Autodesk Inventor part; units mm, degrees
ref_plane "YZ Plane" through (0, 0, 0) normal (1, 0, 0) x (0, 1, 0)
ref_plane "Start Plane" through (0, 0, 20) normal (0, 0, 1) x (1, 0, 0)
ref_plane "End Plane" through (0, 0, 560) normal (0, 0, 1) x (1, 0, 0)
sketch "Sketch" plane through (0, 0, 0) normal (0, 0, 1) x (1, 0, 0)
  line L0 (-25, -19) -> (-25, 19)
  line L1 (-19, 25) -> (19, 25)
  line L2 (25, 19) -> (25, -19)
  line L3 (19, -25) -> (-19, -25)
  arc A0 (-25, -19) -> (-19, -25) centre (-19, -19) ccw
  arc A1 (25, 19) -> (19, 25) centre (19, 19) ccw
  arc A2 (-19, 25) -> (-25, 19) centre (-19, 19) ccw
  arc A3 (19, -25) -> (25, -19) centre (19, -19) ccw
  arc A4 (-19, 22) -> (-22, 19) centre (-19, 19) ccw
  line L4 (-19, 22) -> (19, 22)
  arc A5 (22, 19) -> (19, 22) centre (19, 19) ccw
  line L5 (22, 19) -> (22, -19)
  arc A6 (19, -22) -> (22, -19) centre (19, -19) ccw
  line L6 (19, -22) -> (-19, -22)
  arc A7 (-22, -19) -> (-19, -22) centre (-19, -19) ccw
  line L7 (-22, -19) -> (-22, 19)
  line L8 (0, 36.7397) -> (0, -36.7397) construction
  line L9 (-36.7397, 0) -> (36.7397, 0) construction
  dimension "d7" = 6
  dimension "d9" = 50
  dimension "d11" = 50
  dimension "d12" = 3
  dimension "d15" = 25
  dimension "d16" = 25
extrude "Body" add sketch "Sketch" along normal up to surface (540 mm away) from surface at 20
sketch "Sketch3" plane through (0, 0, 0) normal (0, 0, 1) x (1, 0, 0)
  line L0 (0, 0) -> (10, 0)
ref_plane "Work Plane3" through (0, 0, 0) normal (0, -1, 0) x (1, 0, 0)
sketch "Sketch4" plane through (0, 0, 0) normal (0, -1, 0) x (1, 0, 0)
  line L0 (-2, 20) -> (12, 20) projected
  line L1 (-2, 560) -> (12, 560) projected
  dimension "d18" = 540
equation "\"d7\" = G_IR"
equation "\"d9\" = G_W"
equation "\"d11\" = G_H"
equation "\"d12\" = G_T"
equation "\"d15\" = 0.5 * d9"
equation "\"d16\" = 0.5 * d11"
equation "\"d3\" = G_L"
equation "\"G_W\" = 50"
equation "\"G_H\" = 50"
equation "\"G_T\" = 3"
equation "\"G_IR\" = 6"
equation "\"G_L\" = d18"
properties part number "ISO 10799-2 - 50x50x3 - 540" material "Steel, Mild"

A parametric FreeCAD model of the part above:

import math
import FreeCAD as App
import Part
import Sketcher
from FreeCAD import Vector

doc = App.newDocument("Part")
params = doc.addObject("Spreadsheet::Sheet", "Params")
for row, (alias, value) in enumerate([
    ("sketch1_radius", "6 mm"),
    ("sketch1_radius2", "3 mm"),
    ("pad1_length", "540 mm"),
], start=1):
    params.set(f"A{row}", alias)
    params.set(f"B{row}", "=" + value)
    params.setAlias(f"B{row}", alias)

body = doc.addObject("PartDesign::Body", "Body")

sketch1 = doc.addObject("Sketcher::SketchObject", "Sketch")
body.addObject(sketch1)
sketch1.AttachmentSupport = (doc.XY_Plane, [""])
sketch1.MapMode = "FlatFace"
sketch1.AttachmentOffset = App.Placement(Vector(0, 0, 20), App.Rotation())
sketch1.addGeometry(Part.LineSegment(Vector(-25, 19, 0), Vector(-25, -19, 0)), False)
sketch1.addGeometry(Part.ArcOfCircle(Part.Circle(Vector(-19, -19, 0), Vector(0, 0, 1), 6), math.radians(180), math.radians(270)), False)
sketch1.addGeometry(Part.LineSegment(Vector(-19, -25, 0), Vector(19, -25, 0)), False)
sketch1.addGeometry(Part.ArcOfCircle(Part.Circle(Vector(19, -19, 0), Vector(0, 0, 1), 6), math.radians(-90), math.radians(0)), False)
sketch1.addGeometry(Part.LineSegment(Vector(25, -19, 0), Vector(25, 19, 0)), False)
sketch1.addGeometry(Part.ArcOfCircle(Part.Circle(Vector(19, 19, 0), Vector(0, 0, 1), 6), math.radians(0), math.radians(90)), False)
sketch1.addGeometry(Part.LineSegment(Vector(19, 25, 0), Vector(-19, 25, 0)), False)
sketch1.addGeometry(Part.ArcOfCircle(Part.Circle(Vector(-19, 19, 0), Vector(0, 0, 1), 6), math.radians(90), math.radians(180)), False)
sketch1.addGeometry(Part.ArcOfCircle(Part.Circle(Vector(-19, 19, 0), Vector(0, 0, 1), 3), math.radians(90), math.radians(180)), False)
sketch1.addGeometry(Part.LineSegment(Vector(-19, 22, 0), Vector(19, 22, 0)), False)
sketch1.addGeometry(Part.ArcOfCircle(Part.Circle(Vector(19, 19, 0), Vector(0, 0, 1), 3), math.radians(0), math.radians(90)), False)
sketch1.addGeometry(Part.LineSegment(Vector(22, 19, 0), Vector(22, -19, 0)), False)
sketch1.addGeometry(Part.ArcOfCircle(Part.Circle(Vector(19, -19, 0), Vector(0, 0, 1), 3), math.radians(-90), math.radians(0)), False)
sketch1.addGeometry(Part.LineSegment(Vector(19, -22, 0), Vector(-19, -22, 0)), False)
sketch1.addGeometry(Part.ArcOfCircle(Part.Circle(Vector(-19, -19, 0), Vector(0, 0, 1), 3), math.radians(180), math.radians(270)), False)
sketch1.addGeometry(Part.LineSegment(Vector(-22, -19, 0), Vector(-22, 19, 0)), False)
sketch1.addConstraint(Sketcher.Constraint("Tangent", 0, 2, 1, 1))
sketch1.addConstraint(Sketcher.Constraint("Tangent", 1, 2, 2, 1))
sketch1.addConstraint(Sketcher.Constraint("Tangent", 2, 2, 3, 1))
sketch1.addConstraint(Sketcher.Constraint("Tangent", 3, 2, 4, 1))
sketch1.addConstraint(Sketcher.Constraint("Tangent", 4, 2, 5, 1))
sketch1.addConstraint(Sketcher.Constraint("Tangent", 5, 2, 6, 1))
sketch1.addConstraint(Sketcher.Constraint("Tangent", 6, 2, 7, 1))
sketch1.addConstraint(Sketcher.Constraint("Tangent", 7, 2, 0, 1))
sketch1.addConstraint(Sketcher.Constraint("Tangent", 8, 1, 9, 1))
sketch1.addConstraint(Sketcher.Constraint("Tangent", 9, 2, 10, 2))
sketch1.addConstraint(Sketcher.Constraint("Tangent", 10, 1, 11, 1))
sketch1.addConstraint(Sketcher.Constraint("Tangent", 11, 2, 12, 2))
sketch1.addConstraint(Sketcher.Constraint("Tangent", 12, 1, 13, 1))
sketch1.addConstraint(Sketcher.Constraint("Tangent", 13, 2, 14, 2))
sketch1.addConstraint(Sketcher.Constraint("Tangent", 14, 1, 15, 1))
sketch1.addConstraint(Sketcher.Constraint("Tangent", 15, 2, 8, 2))
sketch1.addConstraint(Sketcher.Constraint("Vertical", 0))
sketch1.addConstraint(Sketcher.Constraint("Horizontal", 2))
sketch1.addConstraint(Sketcher.Constraint("Vertical", 4))
sketch1.addConstraint(Sketcher.Constraint("Horizontal", 6))
sketch1.addConstraint(Sketcher.Constraint("Horizontal", 9))
sketch1.addConstraint(Sketcher.Constraint("Vertical", 11))
sketch1.addConstraint(Sketcher.Constraint("Horizontal", 13))
sketch1.addConstraint(Sketcher.Constraint("Vertical", 15))
sketch1.addConstraint(Sketcher.Constraint("Coincident", 8, 3, 7, 3))
sketch1.addConstraint(Sketcher.Constraint("Coincident", 10, 3, 5, 3))
sketch1.addConstraint(Sketcher.Constraint("Coincident", 12, 3, 3, 3))
sketch1.addConstraint(Sketcher.Constraint("Equal", 1, 3))
sketch1.addConstraint(Sketcher.Constraint("Equal", 3, 5))
sketch1.addConstraint(Sketcher.Constraint("Equal", 5, 7))
sketch1.addConstraint(Sketcher.Constraint("Equal", 12, 14))
sketch1.addConstraint(Sketcher.Constraint("Symmetric", 1, 3, 5, 3, -1, 1))
sketch1.addConstraint(Sketcher.Constraint("Equal", 13, 0))
sketch1.addConstraint(Sketcher.Constraint("Radius", 1, 6.0))
sketch1.addConstraint(Sketcher.Constraint("Radius", 8, 3.0))
sketch1.addConstraint(Sketcher.Constraint("DistanceX", 0, 2, -1, 1, 25.0))
sketch1.setExpression("Constraints[33]", "Params.sketch1_radius")
sketch1.setExpression("Constraints[34]", "Params.sketch1_radius2")
pad1 = doc.addObject("PartDesign::Pad", "Pad")
body.addObject(pad1)
pad1.Profile = sketch1
pad1.setExpression("Length", "Params.pad1_length")

doc.recompute()
